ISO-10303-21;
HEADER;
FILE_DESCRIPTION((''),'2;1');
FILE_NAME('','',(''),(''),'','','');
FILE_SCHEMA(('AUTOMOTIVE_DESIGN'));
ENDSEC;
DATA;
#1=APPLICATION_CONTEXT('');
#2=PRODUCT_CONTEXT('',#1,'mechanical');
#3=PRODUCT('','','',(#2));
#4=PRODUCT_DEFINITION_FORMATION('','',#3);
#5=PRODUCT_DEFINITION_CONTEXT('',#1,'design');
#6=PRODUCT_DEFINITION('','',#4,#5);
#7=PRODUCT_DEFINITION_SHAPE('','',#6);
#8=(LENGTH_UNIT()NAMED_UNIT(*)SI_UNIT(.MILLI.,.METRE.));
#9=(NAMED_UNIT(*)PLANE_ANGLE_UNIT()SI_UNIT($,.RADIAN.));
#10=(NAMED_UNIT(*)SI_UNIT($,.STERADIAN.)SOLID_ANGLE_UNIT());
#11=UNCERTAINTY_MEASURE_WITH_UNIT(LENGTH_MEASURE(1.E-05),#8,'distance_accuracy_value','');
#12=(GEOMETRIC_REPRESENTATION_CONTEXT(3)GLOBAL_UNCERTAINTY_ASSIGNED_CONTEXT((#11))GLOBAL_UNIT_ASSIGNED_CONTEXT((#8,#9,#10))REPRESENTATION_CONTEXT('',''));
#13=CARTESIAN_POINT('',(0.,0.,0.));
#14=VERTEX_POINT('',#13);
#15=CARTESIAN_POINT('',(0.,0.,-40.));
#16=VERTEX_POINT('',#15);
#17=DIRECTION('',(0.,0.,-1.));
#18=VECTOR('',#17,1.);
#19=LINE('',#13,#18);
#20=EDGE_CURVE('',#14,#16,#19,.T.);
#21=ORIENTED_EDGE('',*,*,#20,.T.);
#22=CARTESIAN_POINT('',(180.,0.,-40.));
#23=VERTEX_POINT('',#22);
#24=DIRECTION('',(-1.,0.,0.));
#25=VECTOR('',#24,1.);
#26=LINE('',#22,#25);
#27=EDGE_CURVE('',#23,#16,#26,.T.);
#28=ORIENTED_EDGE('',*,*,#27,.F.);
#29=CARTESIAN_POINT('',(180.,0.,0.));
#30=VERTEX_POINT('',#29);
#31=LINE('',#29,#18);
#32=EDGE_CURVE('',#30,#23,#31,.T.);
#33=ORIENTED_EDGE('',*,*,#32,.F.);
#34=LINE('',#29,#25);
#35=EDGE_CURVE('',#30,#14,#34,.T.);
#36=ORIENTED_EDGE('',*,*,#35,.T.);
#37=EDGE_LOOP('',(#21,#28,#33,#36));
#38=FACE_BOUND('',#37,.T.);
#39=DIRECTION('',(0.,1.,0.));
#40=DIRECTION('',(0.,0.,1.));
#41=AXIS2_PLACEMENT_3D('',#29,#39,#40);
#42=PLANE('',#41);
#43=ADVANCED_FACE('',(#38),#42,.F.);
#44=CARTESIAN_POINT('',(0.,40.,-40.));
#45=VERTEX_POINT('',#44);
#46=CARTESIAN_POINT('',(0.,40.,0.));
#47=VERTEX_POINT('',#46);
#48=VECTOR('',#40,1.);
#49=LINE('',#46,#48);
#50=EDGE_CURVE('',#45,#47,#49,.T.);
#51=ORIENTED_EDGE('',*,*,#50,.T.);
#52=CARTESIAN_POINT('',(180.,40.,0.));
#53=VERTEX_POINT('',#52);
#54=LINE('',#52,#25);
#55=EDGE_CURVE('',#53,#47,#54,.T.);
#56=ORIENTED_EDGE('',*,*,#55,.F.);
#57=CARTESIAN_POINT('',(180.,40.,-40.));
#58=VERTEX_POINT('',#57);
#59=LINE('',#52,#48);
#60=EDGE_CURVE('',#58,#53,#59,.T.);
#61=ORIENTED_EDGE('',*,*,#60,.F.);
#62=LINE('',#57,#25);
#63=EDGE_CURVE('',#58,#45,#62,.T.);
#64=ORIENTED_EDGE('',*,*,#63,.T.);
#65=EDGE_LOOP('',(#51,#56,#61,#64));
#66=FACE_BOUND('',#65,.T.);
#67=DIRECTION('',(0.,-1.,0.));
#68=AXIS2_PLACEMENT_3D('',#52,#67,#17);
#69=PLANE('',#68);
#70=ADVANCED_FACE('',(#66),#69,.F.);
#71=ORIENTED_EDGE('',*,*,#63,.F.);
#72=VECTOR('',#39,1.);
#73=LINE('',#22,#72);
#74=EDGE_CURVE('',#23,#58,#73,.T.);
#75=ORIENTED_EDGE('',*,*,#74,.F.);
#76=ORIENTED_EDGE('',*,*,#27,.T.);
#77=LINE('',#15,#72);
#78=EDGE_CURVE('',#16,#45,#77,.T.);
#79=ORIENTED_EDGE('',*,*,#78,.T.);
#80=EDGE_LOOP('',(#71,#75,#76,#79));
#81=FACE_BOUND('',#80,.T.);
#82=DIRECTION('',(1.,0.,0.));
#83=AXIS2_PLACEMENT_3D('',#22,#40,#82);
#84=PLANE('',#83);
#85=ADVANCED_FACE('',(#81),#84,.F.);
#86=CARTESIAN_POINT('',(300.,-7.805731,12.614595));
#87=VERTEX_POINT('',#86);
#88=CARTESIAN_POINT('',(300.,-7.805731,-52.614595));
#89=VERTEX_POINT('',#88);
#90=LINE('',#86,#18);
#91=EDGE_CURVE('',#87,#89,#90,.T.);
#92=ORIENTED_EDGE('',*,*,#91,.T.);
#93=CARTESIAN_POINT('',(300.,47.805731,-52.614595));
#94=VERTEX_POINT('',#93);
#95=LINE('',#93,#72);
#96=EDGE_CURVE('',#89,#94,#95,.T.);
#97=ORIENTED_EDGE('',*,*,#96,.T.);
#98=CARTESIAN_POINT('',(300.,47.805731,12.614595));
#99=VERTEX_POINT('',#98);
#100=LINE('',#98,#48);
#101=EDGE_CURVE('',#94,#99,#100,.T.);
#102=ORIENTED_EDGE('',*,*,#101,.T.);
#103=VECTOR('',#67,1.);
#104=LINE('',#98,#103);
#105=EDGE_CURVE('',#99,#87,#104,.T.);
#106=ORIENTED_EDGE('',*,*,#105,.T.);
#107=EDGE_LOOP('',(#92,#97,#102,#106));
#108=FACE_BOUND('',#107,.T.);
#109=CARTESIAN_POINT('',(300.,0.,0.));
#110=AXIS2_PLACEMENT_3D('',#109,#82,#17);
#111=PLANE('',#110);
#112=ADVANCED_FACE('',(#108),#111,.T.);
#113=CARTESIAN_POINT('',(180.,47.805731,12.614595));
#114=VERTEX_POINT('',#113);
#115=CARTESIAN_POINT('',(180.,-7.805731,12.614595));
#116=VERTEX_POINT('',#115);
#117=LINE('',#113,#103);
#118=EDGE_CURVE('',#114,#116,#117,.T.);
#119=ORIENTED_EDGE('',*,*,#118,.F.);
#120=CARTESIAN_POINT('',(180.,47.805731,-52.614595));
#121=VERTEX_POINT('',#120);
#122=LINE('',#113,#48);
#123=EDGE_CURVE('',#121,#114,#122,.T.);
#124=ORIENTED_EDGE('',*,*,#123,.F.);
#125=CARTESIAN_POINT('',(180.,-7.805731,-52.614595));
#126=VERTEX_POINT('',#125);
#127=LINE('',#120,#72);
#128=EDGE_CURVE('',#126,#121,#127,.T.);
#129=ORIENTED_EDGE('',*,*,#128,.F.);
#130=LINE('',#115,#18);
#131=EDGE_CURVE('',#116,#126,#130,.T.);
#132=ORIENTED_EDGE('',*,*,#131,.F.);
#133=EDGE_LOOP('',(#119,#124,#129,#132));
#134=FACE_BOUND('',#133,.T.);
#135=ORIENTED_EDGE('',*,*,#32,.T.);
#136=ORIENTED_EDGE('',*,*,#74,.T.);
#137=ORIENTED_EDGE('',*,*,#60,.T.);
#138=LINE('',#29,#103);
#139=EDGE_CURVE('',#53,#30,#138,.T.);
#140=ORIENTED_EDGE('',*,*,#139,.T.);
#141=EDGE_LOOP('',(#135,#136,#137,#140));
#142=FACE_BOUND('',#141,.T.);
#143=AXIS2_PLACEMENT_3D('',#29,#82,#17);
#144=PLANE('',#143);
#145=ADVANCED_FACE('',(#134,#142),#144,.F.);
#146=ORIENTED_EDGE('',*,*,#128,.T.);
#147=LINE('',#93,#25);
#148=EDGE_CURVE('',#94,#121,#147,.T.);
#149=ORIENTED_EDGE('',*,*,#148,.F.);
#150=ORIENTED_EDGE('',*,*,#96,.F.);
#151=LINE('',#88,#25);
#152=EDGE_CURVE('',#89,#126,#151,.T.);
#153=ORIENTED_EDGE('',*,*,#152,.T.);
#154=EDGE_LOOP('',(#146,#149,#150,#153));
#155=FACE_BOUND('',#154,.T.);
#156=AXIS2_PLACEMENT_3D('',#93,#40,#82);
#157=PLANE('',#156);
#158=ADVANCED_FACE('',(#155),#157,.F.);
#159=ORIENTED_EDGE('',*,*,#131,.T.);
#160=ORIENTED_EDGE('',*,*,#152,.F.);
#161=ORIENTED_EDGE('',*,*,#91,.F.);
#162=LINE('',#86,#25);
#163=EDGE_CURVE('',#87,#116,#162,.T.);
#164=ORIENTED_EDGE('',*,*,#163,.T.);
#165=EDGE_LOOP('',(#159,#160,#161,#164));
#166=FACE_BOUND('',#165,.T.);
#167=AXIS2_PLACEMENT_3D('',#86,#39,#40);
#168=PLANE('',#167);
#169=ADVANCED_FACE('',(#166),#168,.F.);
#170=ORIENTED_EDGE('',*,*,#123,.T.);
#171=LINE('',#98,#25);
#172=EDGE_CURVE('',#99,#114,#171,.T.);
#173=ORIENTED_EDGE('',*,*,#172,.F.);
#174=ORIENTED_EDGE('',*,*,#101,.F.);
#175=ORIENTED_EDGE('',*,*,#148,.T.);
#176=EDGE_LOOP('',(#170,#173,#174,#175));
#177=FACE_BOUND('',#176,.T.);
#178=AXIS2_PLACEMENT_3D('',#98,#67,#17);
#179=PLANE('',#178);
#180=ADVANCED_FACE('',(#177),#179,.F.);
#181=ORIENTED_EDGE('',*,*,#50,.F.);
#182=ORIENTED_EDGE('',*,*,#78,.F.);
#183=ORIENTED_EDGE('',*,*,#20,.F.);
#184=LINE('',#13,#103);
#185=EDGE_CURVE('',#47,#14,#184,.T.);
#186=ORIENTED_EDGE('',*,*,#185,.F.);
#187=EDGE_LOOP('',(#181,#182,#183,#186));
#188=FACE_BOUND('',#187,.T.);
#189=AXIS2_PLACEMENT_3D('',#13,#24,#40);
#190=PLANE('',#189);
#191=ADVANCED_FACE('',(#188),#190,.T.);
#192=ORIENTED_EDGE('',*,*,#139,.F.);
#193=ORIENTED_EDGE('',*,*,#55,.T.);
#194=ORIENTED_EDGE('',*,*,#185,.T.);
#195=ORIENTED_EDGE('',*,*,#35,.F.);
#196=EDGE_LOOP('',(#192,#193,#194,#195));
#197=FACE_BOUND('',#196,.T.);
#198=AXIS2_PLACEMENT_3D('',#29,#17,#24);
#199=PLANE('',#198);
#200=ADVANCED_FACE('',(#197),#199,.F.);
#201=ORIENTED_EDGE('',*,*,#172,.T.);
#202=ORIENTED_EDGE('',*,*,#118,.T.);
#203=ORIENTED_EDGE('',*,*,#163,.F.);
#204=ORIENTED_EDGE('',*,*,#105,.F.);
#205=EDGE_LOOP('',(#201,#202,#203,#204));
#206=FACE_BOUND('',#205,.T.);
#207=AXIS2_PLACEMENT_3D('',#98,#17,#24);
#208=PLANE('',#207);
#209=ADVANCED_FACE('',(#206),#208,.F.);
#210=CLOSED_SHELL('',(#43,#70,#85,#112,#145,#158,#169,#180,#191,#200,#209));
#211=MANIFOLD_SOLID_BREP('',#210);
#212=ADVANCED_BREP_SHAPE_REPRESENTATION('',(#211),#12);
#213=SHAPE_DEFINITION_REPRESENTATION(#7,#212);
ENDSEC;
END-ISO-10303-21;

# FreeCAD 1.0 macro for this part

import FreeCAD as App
import Part
import Sketcher

doc = App.newDocument("Part")
body = doc.addObject("PartDesign::Body", "Body")

# Sketch on YZ plane
sketch1 = body.newObject("Sketcher::SketchObject", "Sketch")
sketch1.AttachmentSupport = (doc.getObject("YZ_Plane"), [""])
sketch1.MapMode = "FlatFace"
sketch1.addGeometry(Part.LineSegment(App.Vector(40, 0, 0), App.Vector(0, 0, 0)), False)
sketch1.addGeometry(Part.LineSegment(App.Vector(0, 0, 0), App.Vector(0, -40, 0)), False)
sketch1.addGeometry(Part.LineSegment(App.Vector(0, -40, 0), App.Vector(40, -40, 0)), False)
sketch1.addGeometry(Part.LineSegment(App.Vector(40, -40, 0), App.Vector(40, 0, 0)), False)
sketch1.addConstraint(Sketcher.Constraint("Coincident", 0, 2, 1, 1))
sketch1.addConstraint(Sketcher.Constraint("Coincident", 1, 2, 2, 1))
sketch1.addConstraint(Sketcher.Constraint("Coincident", 2, 2, 3, 1))
sketch1.addConstraint(Sketcher.Constraint("Coincident", 3, 2, 0, 1))
sketch1.addConstraint(Sketcher.Constraint("Horizontal", 0))
sketch1.addConstraint(Sketcher.Constraint("Vertical", 1))
sketch1.addConstraint(Sketcher.Constraint("Horizontal", 2))
sketch1.addConstraint(Sketcher.Constraint("Vertical", 3))
sketch1.addConstraint(Sketcher.Constraint("Coincident", 0, 2, -1, 1))
sketch1.addConstraint(Sketcher.Constraint("Equal", 2, 1))
sketch1.addConstraint(Sketcher.Constraint("DistanceX", 0, 2, 0, 1, 40.0))
pad1 = body.newObject("PartDesign::Pad", "Pad")
pad1.Profile = sketch1
pad1.Length = 180

# Sketch on YZ plane
sketch2 = body.newObject("Sketcher::SketchObject", "Sketch001")
sketch2.AttachmentSupport = (doc.getObject("YZ_Plane"), [""])
sketch2.MapMode = "FlatFace"
sketch2.AttachmentOffset = App.Placement(App.Vector(0, 0, 180), App.Rotation())
sketch2.addGeometry(Part.LineSegment(App.Vector(48, 13, 0), App.Vector(-8, 13, 0)), False)
sketch2.addGeometry(Part.LineSegment(App.Vector(-8, 13, 0), App.Vector(-8, -53, 0)), False)
sketch2.addGeometry(Part.LineSegment(App.Vector(-8, -53, 0), App.Vector(48, -53, 0)), False)
sketch2.addGeometry(Part.LineSegment(App.Vector(48, -53, 0), App.Vector(48, 13, 0)), False)
sketch2.addConstraint(Sketcher.Constraint("Coincident", 0, 2, 1, 1))
sketch2.addConstraint(Sketcher.Constraint("Coincident", 1, 2, 2, 1))
sketch2.addConstraint(Sketcher.Constraint("Coincident", 2, 2, 3, 1))
sketch2.addConstraint(Sketcher.Constraint("Coincident", 3, 2, 0, 1))
sketch2.addConstraint(Sketcher.Constraint("Horizontal", 0))
sketch2.addConstraint(Sketcher.Constraint("Vertical", 1))
sketch2.addConstraint(Sketcher.Constraint("Horizontal", 2))
sketch2.addConstraint(Sketcher.Constraint("Vertical", 3))
sketch2.addConstraint(Sketcher.Constraint("DistanceY", 1, 2, 1, 1, 65.22919))
sketch2.addConstraint(Sketcher.Constraint("DistanceX", 0, 2, 0, 1, 55.611462))
sketch2.addConstraint(Sketcher.Constraint("DistanceX", 0, 2, -1, 1, 7.805731))
sketch2.addConstraint(Sketcher.Constraint("DistanceY", -1, 1, 0, 2, 12.614595))
pad2 = body.newObject("PartDesign::Pad", "Pad001")
pad2.Profile = sketch2
pad2.Length = 120

doc.recompute()
